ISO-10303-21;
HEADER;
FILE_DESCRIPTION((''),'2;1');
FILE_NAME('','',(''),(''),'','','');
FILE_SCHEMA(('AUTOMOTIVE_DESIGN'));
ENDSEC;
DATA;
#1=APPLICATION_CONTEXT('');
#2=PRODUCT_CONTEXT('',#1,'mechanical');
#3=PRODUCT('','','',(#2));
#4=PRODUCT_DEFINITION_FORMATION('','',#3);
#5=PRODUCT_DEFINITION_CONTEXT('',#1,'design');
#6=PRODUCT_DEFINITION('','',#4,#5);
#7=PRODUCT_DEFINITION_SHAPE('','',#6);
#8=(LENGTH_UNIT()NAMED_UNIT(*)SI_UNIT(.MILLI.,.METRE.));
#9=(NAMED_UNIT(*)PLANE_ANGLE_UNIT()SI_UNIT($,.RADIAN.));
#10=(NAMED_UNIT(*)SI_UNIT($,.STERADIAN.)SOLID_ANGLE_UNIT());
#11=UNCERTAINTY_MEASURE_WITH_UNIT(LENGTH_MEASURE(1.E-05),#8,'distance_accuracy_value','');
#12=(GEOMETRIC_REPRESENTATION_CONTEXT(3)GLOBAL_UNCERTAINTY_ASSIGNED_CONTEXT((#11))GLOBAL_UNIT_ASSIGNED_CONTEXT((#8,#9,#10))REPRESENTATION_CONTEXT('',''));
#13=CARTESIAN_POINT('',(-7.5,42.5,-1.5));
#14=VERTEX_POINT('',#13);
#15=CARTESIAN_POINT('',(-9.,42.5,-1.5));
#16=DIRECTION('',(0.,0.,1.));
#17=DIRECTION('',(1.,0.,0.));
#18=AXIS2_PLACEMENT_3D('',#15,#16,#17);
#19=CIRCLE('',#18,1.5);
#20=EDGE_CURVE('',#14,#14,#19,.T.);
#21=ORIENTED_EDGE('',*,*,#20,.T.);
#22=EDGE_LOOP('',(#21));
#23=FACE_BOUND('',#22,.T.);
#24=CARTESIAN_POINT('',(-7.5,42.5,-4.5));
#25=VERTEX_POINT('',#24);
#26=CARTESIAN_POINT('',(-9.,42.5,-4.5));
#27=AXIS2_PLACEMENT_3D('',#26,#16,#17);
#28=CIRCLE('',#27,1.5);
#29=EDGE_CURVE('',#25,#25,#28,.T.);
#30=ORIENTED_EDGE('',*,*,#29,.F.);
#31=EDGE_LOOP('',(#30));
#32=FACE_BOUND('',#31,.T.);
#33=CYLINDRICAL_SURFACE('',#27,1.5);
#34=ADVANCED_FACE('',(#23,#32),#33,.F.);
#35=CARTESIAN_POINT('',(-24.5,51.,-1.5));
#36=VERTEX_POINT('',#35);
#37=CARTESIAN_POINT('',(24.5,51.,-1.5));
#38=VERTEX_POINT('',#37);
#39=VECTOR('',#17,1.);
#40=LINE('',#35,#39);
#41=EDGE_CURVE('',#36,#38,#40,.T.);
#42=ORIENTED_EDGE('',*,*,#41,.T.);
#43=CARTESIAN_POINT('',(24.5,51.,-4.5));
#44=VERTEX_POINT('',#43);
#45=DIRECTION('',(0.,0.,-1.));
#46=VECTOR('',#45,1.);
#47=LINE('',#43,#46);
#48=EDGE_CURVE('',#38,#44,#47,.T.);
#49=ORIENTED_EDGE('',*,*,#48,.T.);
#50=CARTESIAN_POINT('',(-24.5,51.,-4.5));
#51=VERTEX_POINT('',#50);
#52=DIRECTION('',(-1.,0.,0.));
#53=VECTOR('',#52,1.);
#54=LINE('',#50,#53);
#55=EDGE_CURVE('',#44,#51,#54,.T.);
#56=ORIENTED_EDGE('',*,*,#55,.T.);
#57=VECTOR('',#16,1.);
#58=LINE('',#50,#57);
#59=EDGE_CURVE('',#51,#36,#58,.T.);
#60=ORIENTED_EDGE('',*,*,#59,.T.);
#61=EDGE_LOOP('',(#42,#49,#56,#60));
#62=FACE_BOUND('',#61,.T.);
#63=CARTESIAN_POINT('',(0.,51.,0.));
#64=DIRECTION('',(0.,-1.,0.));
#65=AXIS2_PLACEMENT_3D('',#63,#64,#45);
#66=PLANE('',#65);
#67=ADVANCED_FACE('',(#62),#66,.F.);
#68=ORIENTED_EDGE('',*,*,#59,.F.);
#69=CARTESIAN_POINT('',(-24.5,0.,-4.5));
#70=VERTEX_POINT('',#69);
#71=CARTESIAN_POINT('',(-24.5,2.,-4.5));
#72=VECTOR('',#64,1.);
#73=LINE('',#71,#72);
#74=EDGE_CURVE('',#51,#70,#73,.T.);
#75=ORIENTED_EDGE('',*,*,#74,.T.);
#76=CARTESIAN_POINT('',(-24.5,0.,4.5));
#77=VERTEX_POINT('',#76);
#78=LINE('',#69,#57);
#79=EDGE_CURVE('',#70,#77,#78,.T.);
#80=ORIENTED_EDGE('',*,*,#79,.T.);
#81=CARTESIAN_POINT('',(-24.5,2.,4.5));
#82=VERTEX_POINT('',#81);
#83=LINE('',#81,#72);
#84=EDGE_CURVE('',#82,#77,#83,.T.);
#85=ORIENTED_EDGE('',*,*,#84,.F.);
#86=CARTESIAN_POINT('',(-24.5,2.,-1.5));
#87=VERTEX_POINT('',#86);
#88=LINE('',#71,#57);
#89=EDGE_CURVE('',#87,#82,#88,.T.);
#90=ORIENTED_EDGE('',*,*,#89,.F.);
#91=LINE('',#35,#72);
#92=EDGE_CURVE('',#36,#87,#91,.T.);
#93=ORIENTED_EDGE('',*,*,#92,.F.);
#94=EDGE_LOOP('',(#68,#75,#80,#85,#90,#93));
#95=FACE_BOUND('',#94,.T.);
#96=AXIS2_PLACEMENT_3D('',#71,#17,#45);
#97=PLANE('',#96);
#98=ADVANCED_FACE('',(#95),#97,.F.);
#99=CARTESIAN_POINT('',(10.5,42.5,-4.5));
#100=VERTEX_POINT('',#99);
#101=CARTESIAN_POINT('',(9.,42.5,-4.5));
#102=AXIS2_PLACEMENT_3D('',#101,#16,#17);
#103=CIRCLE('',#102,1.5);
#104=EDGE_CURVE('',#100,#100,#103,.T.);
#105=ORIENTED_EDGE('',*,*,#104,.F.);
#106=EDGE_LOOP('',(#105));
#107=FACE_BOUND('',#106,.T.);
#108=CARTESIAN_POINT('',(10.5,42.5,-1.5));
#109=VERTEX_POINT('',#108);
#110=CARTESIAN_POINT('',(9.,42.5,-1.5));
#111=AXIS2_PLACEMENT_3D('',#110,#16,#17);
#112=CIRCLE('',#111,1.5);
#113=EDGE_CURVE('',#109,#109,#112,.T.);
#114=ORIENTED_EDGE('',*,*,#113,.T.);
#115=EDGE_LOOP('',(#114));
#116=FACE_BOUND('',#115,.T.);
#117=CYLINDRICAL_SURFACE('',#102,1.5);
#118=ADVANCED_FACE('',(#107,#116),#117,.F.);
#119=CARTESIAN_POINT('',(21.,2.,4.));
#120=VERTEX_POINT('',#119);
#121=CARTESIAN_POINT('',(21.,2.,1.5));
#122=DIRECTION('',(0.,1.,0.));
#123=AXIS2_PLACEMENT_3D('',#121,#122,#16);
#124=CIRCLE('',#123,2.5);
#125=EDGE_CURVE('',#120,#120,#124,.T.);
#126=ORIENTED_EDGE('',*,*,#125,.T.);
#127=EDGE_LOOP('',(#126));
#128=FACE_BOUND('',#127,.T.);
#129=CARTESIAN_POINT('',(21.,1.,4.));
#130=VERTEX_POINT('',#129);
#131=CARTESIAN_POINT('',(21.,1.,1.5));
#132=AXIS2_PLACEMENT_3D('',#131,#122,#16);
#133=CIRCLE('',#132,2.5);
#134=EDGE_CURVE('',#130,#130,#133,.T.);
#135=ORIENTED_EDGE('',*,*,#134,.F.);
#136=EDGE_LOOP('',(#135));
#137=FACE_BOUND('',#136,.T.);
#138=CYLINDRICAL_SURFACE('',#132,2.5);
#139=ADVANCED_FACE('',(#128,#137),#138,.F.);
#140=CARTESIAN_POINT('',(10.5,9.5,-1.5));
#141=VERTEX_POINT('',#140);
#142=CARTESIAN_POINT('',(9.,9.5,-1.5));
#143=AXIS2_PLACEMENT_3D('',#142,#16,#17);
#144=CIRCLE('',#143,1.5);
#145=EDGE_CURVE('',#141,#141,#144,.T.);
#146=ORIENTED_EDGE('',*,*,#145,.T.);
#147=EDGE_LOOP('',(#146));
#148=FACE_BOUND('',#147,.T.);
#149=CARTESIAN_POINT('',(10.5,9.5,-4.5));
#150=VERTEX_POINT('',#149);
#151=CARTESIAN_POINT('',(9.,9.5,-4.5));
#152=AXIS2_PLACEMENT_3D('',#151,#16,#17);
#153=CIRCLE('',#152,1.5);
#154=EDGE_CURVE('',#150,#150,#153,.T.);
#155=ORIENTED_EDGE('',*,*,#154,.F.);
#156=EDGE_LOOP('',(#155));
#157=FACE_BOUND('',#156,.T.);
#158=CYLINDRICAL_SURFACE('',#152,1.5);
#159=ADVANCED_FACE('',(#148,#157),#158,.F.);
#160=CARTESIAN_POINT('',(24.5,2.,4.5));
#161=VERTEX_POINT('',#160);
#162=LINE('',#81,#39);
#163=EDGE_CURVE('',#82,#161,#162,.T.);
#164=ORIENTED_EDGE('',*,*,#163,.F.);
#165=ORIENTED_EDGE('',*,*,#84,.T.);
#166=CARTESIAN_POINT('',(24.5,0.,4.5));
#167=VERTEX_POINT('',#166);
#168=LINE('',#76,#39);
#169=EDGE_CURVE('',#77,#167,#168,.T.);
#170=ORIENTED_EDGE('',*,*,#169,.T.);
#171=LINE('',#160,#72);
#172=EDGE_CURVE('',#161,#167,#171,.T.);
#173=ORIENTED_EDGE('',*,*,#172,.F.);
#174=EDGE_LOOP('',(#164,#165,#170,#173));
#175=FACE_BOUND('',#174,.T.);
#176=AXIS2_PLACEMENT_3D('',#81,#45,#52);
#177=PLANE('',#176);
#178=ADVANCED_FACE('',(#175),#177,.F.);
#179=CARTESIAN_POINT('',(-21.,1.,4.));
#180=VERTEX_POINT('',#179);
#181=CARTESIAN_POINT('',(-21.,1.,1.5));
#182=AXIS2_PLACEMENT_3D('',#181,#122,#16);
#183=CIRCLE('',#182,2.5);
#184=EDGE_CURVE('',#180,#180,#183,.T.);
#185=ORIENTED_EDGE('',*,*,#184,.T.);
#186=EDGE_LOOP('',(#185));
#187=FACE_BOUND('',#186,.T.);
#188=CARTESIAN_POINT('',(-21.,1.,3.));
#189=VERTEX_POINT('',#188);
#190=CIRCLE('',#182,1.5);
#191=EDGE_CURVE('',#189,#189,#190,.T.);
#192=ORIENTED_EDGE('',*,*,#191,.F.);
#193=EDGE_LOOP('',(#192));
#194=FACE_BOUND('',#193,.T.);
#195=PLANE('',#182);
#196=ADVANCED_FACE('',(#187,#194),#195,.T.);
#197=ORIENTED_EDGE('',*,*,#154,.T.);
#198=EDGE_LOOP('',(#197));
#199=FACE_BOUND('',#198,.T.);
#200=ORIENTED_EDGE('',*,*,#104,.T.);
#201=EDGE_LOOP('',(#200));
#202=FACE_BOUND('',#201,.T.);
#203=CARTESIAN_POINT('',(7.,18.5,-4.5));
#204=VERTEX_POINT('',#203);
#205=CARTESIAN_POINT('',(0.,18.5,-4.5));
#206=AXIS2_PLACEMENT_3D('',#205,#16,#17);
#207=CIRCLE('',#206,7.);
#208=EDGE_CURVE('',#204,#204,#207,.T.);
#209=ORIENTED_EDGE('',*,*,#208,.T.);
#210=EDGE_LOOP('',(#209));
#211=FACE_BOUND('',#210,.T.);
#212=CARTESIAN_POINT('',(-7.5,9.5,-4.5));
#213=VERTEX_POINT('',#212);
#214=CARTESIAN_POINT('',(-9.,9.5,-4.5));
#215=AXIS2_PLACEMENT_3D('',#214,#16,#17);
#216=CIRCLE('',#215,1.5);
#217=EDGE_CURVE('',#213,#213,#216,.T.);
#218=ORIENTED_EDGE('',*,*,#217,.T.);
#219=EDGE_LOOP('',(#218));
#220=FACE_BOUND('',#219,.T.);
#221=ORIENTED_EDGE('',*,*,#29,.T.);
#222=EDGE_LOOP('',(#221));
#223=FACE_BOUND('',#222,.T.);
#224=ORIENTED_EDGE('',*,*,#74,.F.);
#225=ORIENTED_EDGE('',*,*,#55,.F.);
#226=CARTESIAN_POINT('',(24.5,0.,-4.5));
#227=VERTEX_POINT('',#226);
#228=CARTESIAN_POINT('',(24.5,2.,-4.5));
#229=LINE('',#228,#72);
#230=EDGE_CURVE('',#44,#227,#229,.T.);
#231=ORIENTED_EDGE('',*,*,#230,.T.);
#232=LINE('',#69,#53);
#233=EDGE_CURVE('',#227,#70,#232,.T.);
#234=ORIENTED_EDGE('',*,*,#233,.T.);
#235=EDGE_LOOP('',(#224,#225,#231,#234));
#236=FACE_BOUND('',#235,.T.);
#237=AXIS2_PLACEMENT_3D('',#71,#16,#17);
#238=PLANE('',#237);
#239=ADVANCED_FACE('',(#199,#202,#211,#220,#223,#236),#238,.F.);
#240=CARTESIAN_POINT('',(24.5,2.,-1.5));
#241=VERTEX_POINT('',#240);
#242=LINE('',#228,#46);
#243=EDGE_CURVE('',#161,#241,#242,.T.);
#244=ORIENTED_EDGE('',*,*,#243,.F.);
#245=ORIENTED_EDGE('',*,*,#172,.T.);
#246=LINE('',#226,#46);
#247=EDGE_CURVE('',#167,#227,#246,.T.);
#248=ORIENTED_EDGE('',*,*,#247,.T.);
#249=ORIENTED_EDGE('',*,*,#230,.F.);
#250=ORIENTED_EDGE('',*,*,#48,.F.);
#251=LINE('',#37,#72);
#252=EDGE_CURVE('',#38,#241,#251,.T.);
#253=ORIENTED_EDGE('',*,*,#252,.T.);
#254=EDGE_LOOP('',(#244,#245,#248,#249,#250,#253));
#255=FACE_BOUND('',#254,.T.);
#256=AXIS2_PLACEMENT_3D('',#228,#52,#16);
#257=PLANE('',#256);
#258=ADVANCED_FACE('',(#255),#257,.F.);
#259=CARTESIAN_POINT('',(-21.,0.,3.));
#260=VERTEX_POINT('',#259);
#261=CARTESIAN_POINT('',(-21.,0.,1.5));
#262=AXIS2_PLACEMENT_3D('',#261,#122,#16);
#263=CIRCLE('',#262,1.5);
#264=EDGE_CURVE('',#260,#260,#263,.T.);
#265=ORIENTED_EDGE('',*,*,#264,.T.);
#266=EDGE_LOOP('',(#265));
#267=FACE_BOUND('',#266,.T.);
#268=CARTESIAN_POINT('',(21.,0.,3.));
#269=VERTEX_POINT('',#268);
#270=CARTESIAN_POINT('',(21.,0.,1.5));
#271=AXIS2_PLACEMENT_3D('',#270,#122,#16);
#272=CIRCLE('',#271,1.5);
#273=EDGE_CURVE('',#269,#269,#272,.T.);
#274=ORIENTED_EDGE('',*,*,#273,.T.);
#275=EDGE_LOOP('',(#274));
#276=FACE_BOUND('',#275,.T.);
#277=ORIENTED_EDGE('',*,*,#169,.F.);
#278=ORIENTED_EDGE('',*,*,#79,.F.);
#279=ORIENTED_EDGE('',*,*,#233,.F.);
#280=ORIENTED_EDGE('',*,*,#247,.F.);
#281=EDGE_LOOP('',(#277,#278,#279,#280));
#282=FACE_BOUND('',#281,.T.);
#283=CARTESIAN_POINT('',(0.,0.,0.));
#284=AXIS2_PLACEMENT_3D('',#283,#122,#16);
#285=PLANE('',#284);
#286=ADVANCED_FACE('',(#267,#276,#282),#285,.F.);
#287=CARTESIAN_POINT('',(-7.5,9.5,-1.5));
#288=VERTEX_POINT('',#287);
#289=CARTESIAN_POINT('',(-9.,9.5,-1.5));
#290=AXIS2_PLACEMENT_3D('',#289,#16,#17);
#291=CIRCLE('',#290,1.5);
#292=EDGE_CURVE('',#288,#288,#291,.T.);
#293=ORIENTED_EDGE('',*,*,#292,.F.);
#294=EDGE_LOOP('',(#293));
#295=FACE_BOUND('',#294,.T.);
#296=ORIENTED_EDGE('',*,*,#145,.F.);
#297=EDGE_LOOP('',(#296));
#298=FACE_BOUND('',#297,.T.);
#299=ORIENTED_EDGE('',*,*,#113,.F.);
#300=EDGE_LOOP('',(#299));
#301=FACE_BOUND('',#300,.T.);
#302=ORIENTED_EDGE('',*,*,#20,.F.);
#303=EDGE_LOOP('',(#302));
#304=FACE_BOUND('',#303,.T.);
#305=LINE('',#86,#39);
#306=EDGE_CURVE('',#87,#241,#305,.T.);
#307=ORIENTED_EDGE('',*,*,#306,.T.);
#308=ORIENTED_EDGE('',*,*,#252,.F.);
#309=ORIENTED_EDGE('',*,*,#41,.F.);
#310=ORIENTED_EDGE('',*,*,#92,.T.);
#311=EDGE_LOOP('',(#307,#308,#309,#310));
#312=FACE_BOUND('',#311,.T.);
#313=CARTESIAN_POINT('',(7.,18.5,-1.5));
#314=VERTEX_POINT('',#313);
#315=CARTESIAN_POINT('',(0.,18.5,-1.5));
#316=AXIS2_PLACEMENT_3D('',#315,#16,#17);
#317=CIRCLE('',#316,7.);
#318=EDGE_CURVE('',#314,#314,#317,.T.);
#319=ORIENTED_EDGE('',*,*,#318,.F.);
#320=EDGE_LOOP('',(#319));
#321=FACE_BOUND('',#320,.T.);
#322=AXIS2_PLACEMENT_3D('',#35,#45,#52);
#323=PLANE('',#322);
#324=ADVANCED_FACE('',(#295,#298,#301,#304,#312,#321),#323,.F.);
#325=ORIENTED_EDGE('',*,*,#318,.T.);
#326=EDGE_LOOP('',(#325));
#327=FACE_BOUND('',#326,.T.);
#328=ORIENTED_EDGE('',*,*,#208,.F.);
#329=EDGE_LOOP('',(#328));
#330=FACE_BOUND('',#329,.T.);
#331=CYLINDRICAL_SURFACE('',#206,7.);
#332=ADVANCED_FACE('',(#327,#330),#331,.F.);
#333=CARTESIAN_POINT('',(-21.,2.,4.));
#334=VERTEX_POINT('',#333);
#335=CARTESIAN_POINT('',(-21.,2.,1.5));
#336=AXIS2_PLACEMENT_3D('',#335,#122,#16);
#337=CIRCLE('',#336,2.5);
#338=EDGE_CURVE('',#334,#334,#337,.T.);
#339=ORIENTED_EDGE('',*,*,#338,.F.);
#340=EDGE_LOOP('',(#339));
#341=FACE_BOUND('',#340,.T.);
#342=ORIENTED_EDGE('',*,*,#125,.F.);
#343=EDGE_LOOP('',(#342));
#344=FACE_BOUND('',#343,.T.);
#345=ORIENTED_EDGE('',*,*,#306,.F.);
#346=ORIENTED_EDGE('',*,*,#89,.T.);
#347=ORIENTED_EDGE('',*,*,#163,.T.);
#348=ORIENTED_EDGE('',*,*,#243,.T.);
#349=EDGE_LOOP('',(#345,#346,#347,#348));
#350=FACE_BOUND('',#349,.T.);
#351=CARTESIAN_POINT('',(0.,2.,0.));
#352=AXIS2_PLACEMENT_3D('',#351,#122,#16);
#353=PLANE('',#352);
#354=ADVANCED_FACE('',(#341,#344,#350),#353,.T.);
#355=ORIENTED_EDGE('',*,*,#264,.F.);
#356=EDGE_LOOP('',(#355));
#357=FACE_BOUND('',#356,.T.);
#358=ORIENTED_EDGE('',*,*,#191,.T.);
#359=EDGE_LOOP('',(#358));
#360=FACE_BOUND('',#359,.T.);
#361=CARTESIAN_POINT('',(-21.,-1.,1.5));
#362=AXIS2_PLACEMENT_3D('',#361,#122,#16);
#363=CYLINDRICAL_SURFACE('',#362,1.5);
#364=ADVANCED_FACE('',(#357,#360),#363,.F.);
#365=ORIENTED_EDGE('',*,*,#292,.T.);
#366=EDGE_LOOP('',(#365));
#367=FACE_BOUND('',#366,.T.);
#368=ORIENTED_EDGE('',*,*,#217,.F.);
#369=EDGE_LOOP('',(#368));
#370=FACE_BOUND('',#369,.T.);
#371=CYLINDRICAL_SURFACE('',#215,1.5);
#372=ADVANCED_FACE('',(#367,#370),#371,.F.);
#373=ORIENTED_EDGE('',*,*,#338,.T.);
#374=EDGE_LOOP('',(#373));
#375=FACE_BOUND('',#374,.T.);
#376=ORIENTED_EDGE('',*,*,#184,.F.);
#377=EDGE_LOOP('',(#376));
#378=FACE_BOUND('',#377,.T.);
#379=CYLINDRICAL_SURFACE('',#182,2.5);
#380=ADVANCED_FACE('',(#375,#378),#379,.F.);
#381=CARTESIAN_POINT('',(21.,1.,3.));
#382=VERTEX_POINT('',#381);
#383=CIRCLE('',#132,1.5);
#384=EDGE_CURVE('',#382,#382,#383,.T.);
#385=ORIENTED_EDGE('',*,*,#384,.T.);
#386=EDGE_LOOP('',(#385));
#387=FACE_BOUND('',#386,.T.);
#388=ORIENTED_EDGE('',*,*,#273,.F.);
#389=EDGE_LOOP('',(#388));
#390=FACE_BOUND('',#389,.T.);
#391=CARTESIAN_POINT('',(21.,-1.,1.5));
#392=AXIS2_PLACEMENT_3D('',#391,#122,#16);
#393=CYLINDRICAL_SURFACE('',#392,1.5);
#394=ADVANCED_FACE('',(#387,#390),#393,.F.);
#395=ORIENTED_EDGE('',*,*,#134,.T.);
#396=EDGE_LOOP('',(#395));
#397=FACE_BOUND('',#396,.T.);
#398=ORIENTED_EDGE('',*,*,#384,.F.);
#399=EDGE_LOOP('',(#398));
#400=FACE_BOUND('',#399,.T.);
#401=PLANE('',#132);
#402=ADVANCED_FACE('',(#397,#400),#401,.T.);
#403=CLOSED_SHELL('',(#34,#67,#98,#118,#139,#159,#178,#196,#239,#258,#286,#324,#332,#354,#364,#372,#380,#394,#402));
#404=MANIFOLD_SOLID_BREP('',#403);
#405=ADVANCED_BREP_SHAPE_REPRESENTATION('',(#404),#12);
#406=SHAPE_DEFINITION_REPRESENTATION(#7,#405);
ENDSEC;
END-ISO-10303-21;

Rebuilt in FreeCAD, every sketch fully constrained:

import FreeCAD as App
import Part
import Sketcher
Q = App.Units.Quantity

doc = App.newDocument("Part")
params = doc.addObject("Spreadsheet::Sheet", "Params")
for row, (alias, value) in enumerate([
    ("sketch1_width", "49 mm"),
    ("sketch1_height", "9 mm"),
    ("pad1_length", "2 mm"),
    ("sketch2_width", "49 mm"),
    ("sketch2_height", "3 mm"),
    ("pad2_length", "49 mm"),
    ("sketch3_diameter", "3 mm"),
    ("sketch3_diameter2", "14 mm"),
    ("pocket1_length", "3 mm"),
    ("sketch4_diameter", "5 mm"),
    ("pocket2_length", "1 mm"),
    ("sketch5_diameter", "3 mm"),
    ("pocket3_length", "2 mm"),
    ("sketch6_diameter", "3 mm"),
    ("pocket4_length", "2 mm"),
], start=1):
    params.set(f"A{row}", alias)
    params.set(f"B{row}", "=" + value)
    params.setAlias(f"B{row}", alias)

body = doc.addObject("PartDesign::Body", "Body")

sketch1 = body.newObject("Sketcher::SketchObject", "Sketch")
sketch1.AttachmentSupport = (doc.getObject("XZ_Plane"), [""])
sketch1.MapMode = "FlatFace"
sketch1.addGeometry([
    Part.LineSegment(App.Vector(-24, -4, 0), App.Vector(-24, 4, 0)),
    Part.LineSegment(App.Vector(-24, 4, 0), App.Vector(24, 4, 0)),
    Part.LineSegment(App.Vector(24, 4, 0), App.Vector(24, -4, 0)),
    Part.LineSegment(App.Vector(24, -4, 0), App.Vector(-24, -4, 0)),
], False)
sketch1.addConstraint([
    Sketcher.Constraint("Coincident", 0, 2, 1, 1),
    Sketcher.Constraint("Coincident", 1, 2, 2, 1),
    Sketcher.Constraint("Coincident", 2, 2, 3, 1),
    Sketcher.Constraint("Coincident", 3, 2, 0, 1),
    Sketcher.Constraint("Vertical", 0),
    Sketcher.Constraint("Horizontal", 1),
    Sketcher.Constraint("Vertical", 2),
    Sketcher.Constraint("Horizontal", 3),
    Sketcher.Constraint("Symmetric", 0, 2, 2, 2, -1, 1),
    Sketcher.Constraint("DistanceX", 1, 1, 1, 2, Q("49 mm")),
    Sketcher.Constraint("DistanceY", 0, 1, 0, 2, Q("9 mm")),
])
sketch1.setExpression("Constraints[9]", "Params.sketch1_width")
sketch1.setExpression("Constraints[10]", "Params.sketch1_height")
pad1 = body.newObject("PartDesign::Pad", "Pad")
pad1.Profile = sketch1
pad1.setExpression("Length", "Params.pad1_length")
pad1.Reversed = True

sketch2 = body.newObject("Sketcher::SketchObject", "Sketch001")
sketch2.AttachmentSupport = (doc.getObject("XZ_Plane"), [""])
sketch2.MapMode = "FlatFace"
sketch2.AttachmentOffset = App.Placement(App.Vector(0, 0, -2), App.Rotation())
sketch2.addGeometry([
    Part.LineSegment(App.Vector(-24.5, -4.5, 0), App.Vector(-24.5, -1.5, 0)),
    Part.LineSegment(App.Vector(-24.5, -1.5, 0), App.Vector(24.5, -1.5, 0)),
    Part.LineSegment(App.Vector(24.5, -1.5, 0), App.Vector(24.5, -4.5, 0)),
    Part.LineSegment(App.Vector(24.5, -4.5, 0), App.Vector(-24.5, -4.5, 0)),
], False)
sketch2.addConstraint([
    Sketcher.Constraint("Coincident", 0, 2, 1, 1),
    Sketcher.Constraint("Coincident", 1, 2, 2, 1),
    Sketcher.Constraint("Coincident", 2, 2, 3, 1),
    Sketcher.Constraint("Coincident", 3, 2, 0, 1),
    Sketcher.Constraint("Vertical", 0),
    Sketcher.Constraint("Horizontal", 1),
    Sketcher.Constraint("Vertical", 2),
    Sketcher.Constraint("Horizontal", 3),
    Sketcher.Constraint("DistanceX", 1, 1, 1, 2, Q("49 mm")),
    Sketcher.Constraint("DistanceY", 0, 1, 0, 2, Q("3 mm")),
    Sketcher.Constraint("DistanceX", 0, 2, -1, 1, Q("24.5 mm")),
    Sketcher.Constraint("DistanceY", 0, 2, -1, 1, Q("1.5 mm")),
])
sketch2.setExpression("Constraints[8]", "Params.sketch2_width")
sketch2.setExpression("Constraints[9]", "Params.sketch2_height")
pad2 = body.newObject("PartDesign::Pad", "Pad001")
pad2.Profile = sketch2
pad2.setExpression("Length", "Params.pad2_length")
pad2.Reversed = True

sketch3 = body.newObject("Sketcher::SketchObject", "Sketch002")
sketch3.AttachmentSupport = (doc.getObject("XY_Plane"), [""])
sketch3.MapMode = "FlatFace"
sketch3.AttachmentOffset = App.Placement(App.Vector(0, 0, -1.5), App.Rotation())
sketch3.addGeometry([
    Part.Circle(App.Vector(-9, 9.5, 0), App.Vector(0, 0, 1), 1.5),
    Part.Circle(App.Vector(9, 9.5, 0), App.Vector(0, 0, 1), 1.5),
    Part.Circle(App.Vector(-9, 42.5, 0), App.Vector(0, 0, 1), 1.5),
    Part.Circle(App.Vector(9, 42.5, 0), App.Vector(0, 0, 1), 1.5),
    Part.Circle(App.Vector(0, 18.5, 0), App.Vector(0, 0, 1), 7),
], False)
sketch3.addConstraint([
    Sketcher.Constraint("Equal", 0, 1),
    Sketcher.Constraint("Equal", 1, 2),
    Sketcher.Constraint("Equal", 2, 3),
    Sketcher.Constraint("Symmetric", 0, 3, 1, 3, -2),
    Sketcher.Constraint("Symmetric", 2, 3, 3, 3, -2),
    Sketcher.Constraint("PointOnObject", 4, 3, -2),
    Sketcher.Constraint("Vertical", 0, 3, 2, 3),
    Sketcher.Constraint("Diameter", 0, Q("3 mm")),
    Sketcher.Constraint("Diameter", 4, Q("14 mm")),
    Sketcher.Constraint("DistanceX", 0, 3, -1, 1, Q("9 mm")),
    Sketcher.Constraint("DistanceY", 0, 3, 2, 3, Q("33 mm")),
    Sketcher.Constraint("DistanceY", 0, 3, 4, 3, Q("9 mm")),
    Sketcher.Constraint("DistanceY", -1, 1, 0, 3, Q("9.5 mm")),
])
sketch3.setExpression("Constraints[7]", "Params.sketch3_diameter")
sketch3.setExpression("Constraints[8]", "Params.sketch3_diameter2")
pocket1 = body.newObject("PartDesign::Pocket", "Pocket")
pocket1.Profile = sketch3
pocket1.setExpression("Length", "Params.pocket1_length")

sketch4 = body.newObject("Sketcher::SketchObject", "Sketch003")
sketch4.AttachmentSupport = (doc.getObject("XZ_Plane"), [""])
sketch4.MapMode = "FlatFace"
sketch4.AttachmentOffset = App.Placement(App.Vector(0, 0, -2), App.Rotation())
sketch4.addGeometry([
    Part.Circle(App.Vector(-21, 1.5, 0), App.Vector(0, 0, 1), 2.5),
    Part.Circle(App.Vector(21, 1.5, 0), App.Vector(0, 0, 1), 2.5),
], False)
sketch4.addConstraint([
    Sketcher.Constraint("Equal", 0, 1),
    Sketcher.Constraint("Symmetric", 0, 3, 1, 3, -2),
    Sketcher.Constraint("Diameter", 0, Q("5 mm")),
    Sketcher.Constraint("DistanceX", 0, 3, -1, 1, Q("21 mm")),
    Sketcher.Constraint("DistanceY", -1, 1, 0, 3, Q("1.5 mm")),
])
sketch4.setExpression("Constraints[2]", "Params.sketch4_diameter")
pocket2 = body.newObject("PartDesign::Pocket", "Pocket001")
pocket2.Profile = sketch4
pocket2.setExpression("Length", "Params.pocket2_length")
pocket2.Reversed = True

sketch5 = body.newObject("Sketcher::SketchObject", "Sketch004")
sketch5.AttachmentSupport = (doc.getObject("XZ_Plane"), [""])
sketch5.MapMode = "FlatFace"
sketch5.AttachmentOffset = App.Placement(App.Vector(0, 0, -1), App.Rotation())
sketch5.addGeometry(Part.Circle(App.Vector(-21, 1.5, 0), App.Vector(0, 0, 1), 1.5), False)
sketch5.addConstraint([
    Sketcher.Constraint("Diameter", 0, Q("3 mm")),
    Sketcher.Constraint("DistanceX", 0, 3, -1, 1, Q("21 mm")),
    Sketcher.Constraint("DistanceY", -1, 1, 0, 3, Q("1.5 mm")),
])
sketch5.setExpression("Constraints[0]", "Params.sketch5_diameter")
pocket3 = body.newObject("PartDesign::Pocket", "Pocket002")
pocket3.Profile = sketch5
pocket3.setExpression("Length", "Params.pocket3_length")
pocket3.Reversed = True

sketch6 = body.newObject("Sketcher::SketchObject", "Sketch005")
sketch6.AttachmentSupport = (doc.getObject("XZ_Plane"), [""])
sketch6.MapMode = "FlatFace"
sketch6.AttachmentOffset = App.Placement(App.Vector(0, 0, -1), App.Rotation())
sketch6.addGeometry(Part.Circle(App.Vector(21, 1.5, 0), App.Vector(0, 0, 1), 1.5), False)
sketch6.addConstraint([
    Sketcher.Constraint("Diameter", 0, Q("3 mm")),
    Sketcher.Constraint("DistanceX", -1, 1, 0, 3, Q("21 mm")),
    Sketcher.Constraint("DistanceY", -1, 1, 0, 3, Q("1.5 mm")),
])
sketch6.setExpression("Constraints[0]", "Params.sketch6_diameter")
pocket4 = body.newObject("PartDesign::Pocket", "Pocket003")
pocket4.Profile = sketch6
pocket4.setExpression("Length", "Params.pocket4_length")
pocket4.Reversed = True

doc.recompute()
